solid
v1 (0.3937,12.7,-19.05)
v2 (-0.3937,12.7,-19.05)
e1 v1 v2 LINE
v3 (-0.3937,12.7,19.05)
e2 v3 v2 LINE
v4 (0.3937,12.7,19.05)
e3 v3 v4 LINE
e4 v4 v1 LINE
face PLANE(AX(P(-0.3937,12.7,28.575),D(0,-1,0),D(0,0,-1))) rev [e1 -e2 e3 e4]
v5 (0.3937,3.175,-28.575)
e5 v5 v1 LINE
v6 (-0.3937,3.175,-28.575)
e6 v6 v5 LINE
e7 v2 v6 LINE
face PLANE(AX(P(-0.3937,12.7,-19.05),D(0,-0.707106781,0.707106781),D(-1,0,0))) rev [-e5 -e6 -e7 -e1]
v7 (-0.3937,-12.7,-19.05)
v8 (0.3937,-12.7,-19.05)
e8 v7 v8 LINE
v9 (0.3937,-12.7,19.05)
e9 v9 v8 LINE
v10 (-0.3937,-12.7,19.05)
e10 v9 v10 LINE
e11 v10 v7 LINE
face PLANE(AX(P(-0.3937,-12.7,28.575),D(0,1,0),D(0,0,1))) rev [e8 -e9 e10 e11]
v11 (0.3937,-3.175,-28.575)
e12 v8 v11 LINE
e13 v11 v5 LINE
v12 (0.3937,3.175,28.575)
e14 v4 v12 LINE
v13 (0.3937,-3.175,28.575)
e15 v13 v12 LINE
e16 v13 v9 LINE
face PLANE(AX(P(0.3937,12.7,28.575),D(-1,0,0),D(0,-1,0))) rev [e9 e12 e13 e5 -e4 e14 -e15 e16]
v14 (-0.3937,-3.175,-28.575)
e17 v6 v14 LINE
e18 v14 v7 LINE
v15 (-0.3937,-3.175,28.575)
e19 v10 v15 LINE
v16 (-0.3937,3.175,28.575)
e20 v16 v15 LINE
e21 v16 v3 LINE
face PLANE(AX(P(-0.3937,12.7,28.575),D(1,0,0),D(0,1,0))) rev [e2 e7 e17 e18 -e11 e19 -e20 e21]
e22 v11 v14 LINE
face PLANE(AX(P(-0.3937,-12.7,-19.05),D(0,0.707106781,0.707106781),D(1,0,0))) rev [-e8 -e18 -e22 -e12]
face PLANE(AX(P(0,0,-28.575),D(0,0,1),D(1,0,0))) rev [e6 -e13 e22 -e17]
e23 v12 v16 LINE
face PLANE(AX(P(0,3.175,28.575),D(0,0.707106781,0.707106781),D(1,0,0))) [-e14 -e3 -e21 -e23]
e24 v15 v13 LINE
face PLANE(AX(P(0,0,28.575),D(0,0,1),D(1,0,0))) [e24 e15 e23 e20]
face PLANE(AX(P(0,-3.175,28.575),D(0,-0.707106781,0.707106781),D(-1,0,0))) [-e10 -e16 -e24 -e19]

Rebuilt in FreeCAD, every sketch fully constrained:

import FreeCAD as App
import Part
import Sketcher
from FreeCAD import Vector
Q = App.Units.Quantity


def edges_at(feature, points):
    """Names of the edges that pass closest to the given points."""
    edges = feature.Shape.Edges
    near = lambda p: min(range(len(edges)), key=lambda i: edges[i].distToShape(Part.Vertex(*p))[0])
    return sorted({f"Edge{near(p) + 1}" for p in points})

doc = App.newDocument("Part")
body = doc.addObject("PartDesign::Body", "Body")

sketch1 = doc.addObject("Sketcher::SketchObject", "Sketch")
body.addObject(sketch1)
sketch1.AttachmentSupport = (doc.XY_Plane, [""])
sketch1.MapMode = "FlatFace"
sketch1.addGeometry(Part.LineSegment(Vector(-0.4, 12.7, 0), Vector(-0.4, -12.7, 0)), False)
sketch1.addGeometry(Part.LineSegment(Vector(-0.4, -12.7, 0), Vector(0.4, -12.7, 0)), False)
sketch1.addGeometry(Part.LineSegment(Vector(0.4, -12.7, 0), Vector(0.4, 12.7, 0)), False)
sketch1.addGeometry(Part.LineSegment(Vector(0.4, 12.7, 0), Vector(-0.4, 12.7, 0)), False)
sketch1.addConstraint(Sketcher.Constraint("Coincident", 0, 2, 1, 1))
sketch1.addConstraint(Sketcher.Constraint("Coincident", 1, 2, 2, 1))
sketch1.addConstraint(Sketcher.Constraint("Coincident", 2, 2, 3, 1))
sketch1.addConstraint(Sketcher.Constraint("Coincident", 3, 2, 0, 1))
sketch1.addConstraint(Sketcher.Constraint("Vertical", 0))
sketch1.addConstraint(Sketcher.Constraint("Horizontal", 1))
sketch1.addConstraint(Sketcher.Constraint("Vertical", 2))
sketch1.addConstraint(Sketcher.Constraint("Horizontal", 3))
sketch1.addConstraint(Sketcher.Constraint("Symmetric", 0, 2, 2, 2, -1, 1))
sketch1.addConstraint(Sketcher.Constraint("DistanceY", 0, 2, 0, 1, Q("1 in")))
sketch1.addConstraint(Sketcher.Constraint("DistanceX", 1, 1, 1, 2, Q("0.031 in")))
pad1 = doc.addObject("PartDesign::Pad", "Pad")
body.addObject(pad1)
pad1.Profile = sketch1
pad1.Length = Q("2.25 in")
pad1.Midplane = True
doc.recompute()

chamfer = doc.addObject("PartDesign::Chamfer", "Chamfer")
body.addObject(chamfer)
chamfer.Base = (pad1, edges_at(pad1, [
    (0, -12.7, 28.575),
    (0, -12.7, -28.575),
    (0, 12.7, -28.575),
    (0, 12.7, 28.575),
]))
chamfer.Size = Q("0.375 in")

doc.recompute()
